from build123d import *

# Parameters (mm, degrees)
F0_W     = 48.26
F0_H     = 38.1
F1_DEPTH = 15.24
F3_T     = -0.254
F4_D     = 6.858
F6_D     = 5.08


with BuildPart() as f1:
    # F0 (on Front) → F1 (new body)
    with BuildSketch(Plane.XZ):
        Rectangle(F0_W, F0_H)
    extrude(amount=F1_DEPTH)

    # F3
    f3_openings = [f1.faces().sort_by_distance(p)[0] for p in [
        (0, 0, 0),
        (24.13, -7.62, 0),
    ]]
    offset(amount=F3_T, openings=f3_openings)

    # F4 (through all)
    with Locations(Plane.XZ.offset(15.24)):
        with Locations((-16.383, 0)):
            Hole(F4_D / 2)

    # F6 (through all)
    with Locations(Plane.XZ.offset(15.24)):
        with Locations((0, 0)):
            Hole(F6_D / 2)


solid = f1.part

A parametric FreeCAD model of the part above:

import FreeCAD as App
import Part
import Sketcher
from FreeCAD import Vector
Q = App.Units.Quantity


def faces_at(feature, points):
    """Names of the faces that lie closest to the given points."""
    faces = feature.Shape.Faces
    near = lambda p: min(range(len(faces)), key=lambda i: faces[i].distToShape(Part.Vertex(*p))[0])
    return sorted({f"Face{near(p) + 1}" for p in points})


def add_polygon(sketch, points):
    """Adds a closed chain of lines whose ends are joined by coincident constraints."""
    first, n = sketch.GeometryCount, len(points)
    for a, b in zip(points, points[1:] + points[:1]):
        sketch.addGeometry(Part.LineSegment(App.Vector(*a, 0), App.Vector(*b, 0)), False)
    for i in range(n):
        sketch.addConstraint(Sketcher.Constraint("Coincident", first + i, 2, first + (i + 1) % n, 1))

doc = App.newDocument("Part")
params = doc.addObject("Spreadsheet::Sheet", "Params")
for row, (alias, value) in enumerate([
    ("sketch1_width", "1.9 in"),
    ("sketch1_height", "1.5 in"),
    ("pad1_length", "0.6 in"),
    ("thickness_wall", "0.01 in"),
    ("sketch2_diameter", "0.27 in"),
    ("hole_diameter", "0.27 in"),
    ("sketch3_diameter", "0.2 in"),
    ("hole2_diameter", "0.2 in"),
], start=1):
    params.set(f"A{row}", alias)
    params.set(f"B{row}", "=" + value)
    params.setAlias(f"B{row}", alias)

body = doc.addObject("PartDesign::Body", "Body")

sketch1 = doc.addObject("Sketcher::SketchObject", "Sketch")
body.addObject(sketch1)
sketch1.AttachmentSupport = (doc.XZ_Plane, [""])
sketch1.MapMode = "FlatFace"
add_polygon(sketch1, [(-24, 19), (-24, -19), (24, -19), (24, 19)])
sketch1.addConstraint(Sketcher.Constraint("Vertical", 0))
sketch1.addConstraint(Sketcher.Constraint("Horizontal", 1))
sketch1.addConstraint(Sketcher.Constraint("Vertical", 2))
sketch1.addConstraint(Sketcher.Constraint("Horizontal", 3))
sketch1.addConstraint(Sketcher.Constraint("Symmetric", 0, 2, 2, 2, -1, 1))
sketch1.addConstraint(Sketcher.Constraint("DistanceX", 1, 1, 1, 2, Q("1.9 in")))
sketch1.addConstraint(Sketcher.Constraint("DistanceY", 0, 2, 0, 1, Q("1.5 in")))
sketch1.setExpression("Constraints[9]", "Params.sketch1_width")
sketch1.setExpression("Constraints[10]", "Params.sketch1_height")
pad1 = doc.addObject("PartDesign::Pad", "Pad")
body.addObject(pad1)
pad1.Profile = sketch1
pad1.setExpression("Length", "Params.pad1_length")
doc.recompute()

thickness = doc.addObject("PartDesign::Thickness", "Thickness")
body.addObject(thickness)
thickness.Base = (pad1, faces_at(pad1, [(0, 0, 0), (24.13, -7.62, 0)]))
thickness.setExpression("Value", "Params.thickness_wall")
thickness.Reversed = True
thickness.Join = "Arc"

sketch2 = doc.addObject("Sketcher::SketchObject", "Sketch001")
body.addObject(sketch2)
sketch2.AttachmentSupport = (doc.XZ_Plane, [""])
sketch2.MapMode = "FlatFace"
sketch2.AttachmentOffset = App.Placement(Vector(0, 0, 0.6 * 25.4), App.Rotation())
sketch2.addGeometry(Part.Circle(Vector(-16.4, 0, 0), Vector(0, 0, 1), 3.4), False)
sketch2.addConstraint(Sketcher.Constraint("PointOnObject", 0, 3, -1))
sketch2.addConstraint(Sketcher.Constraint("Diameter", 0, Q("0.27 in")))
sketch2.addConstraint(Sketcher.Constraint("DistanceX", 0, 3, -1, 1, Q("0.645 in")))
sketch2.setExpression("Constraints[1]", "Params.sketch2_diameter")
doc.recompute()
hole = doc.addObject("PartDesign::Hole", "Hole")
body.addObject(hole)
hole.Profile = sketch2
hole.ThreadType = "None"
hole.setExpression("Diameter", "Params.hole_diameter")
hole.DepthType = "ThroughAll"

sketch3 = doc.addObject("Sketcher::SketchObject", "Sketch002")
body.addObject(sketch3)
sketch3.AttachmentSupport = (doc.XZ_Plane, [""])
sketch3.MapMode = "FlatFace"
sketch3.AttachmentOffset = App.Placement(Vector(0, 0, 0.6 * 25.4), App.Rotation())
sketch3.addGeometry(Part.Circle(Vector(0, 0, 0), Vector(0, 0, 1), 2.5), False)
sketch3.addConstraint(Sketcher.Constraint("Coincident", 0, 3, -1, 1))
sketch3.addConstraint(Sketcher.Constraint("Diameter", 0, Q("0.2 in")))
sketch3.setExpression("Constraints[1]", "Params.sketch3_diameter")
doc.recompute()
hole2 = doc.addObject("PartDesign::Hole", "Hole001")
body.addObject(hole2)
hole2.Profile = sketch3
hole2.ThreadType = "None"
hole2.setExpression("Diameter", "Params.hole2_diameter")
hole2.DepthType = "ThroughAll"

doc.recompute()
